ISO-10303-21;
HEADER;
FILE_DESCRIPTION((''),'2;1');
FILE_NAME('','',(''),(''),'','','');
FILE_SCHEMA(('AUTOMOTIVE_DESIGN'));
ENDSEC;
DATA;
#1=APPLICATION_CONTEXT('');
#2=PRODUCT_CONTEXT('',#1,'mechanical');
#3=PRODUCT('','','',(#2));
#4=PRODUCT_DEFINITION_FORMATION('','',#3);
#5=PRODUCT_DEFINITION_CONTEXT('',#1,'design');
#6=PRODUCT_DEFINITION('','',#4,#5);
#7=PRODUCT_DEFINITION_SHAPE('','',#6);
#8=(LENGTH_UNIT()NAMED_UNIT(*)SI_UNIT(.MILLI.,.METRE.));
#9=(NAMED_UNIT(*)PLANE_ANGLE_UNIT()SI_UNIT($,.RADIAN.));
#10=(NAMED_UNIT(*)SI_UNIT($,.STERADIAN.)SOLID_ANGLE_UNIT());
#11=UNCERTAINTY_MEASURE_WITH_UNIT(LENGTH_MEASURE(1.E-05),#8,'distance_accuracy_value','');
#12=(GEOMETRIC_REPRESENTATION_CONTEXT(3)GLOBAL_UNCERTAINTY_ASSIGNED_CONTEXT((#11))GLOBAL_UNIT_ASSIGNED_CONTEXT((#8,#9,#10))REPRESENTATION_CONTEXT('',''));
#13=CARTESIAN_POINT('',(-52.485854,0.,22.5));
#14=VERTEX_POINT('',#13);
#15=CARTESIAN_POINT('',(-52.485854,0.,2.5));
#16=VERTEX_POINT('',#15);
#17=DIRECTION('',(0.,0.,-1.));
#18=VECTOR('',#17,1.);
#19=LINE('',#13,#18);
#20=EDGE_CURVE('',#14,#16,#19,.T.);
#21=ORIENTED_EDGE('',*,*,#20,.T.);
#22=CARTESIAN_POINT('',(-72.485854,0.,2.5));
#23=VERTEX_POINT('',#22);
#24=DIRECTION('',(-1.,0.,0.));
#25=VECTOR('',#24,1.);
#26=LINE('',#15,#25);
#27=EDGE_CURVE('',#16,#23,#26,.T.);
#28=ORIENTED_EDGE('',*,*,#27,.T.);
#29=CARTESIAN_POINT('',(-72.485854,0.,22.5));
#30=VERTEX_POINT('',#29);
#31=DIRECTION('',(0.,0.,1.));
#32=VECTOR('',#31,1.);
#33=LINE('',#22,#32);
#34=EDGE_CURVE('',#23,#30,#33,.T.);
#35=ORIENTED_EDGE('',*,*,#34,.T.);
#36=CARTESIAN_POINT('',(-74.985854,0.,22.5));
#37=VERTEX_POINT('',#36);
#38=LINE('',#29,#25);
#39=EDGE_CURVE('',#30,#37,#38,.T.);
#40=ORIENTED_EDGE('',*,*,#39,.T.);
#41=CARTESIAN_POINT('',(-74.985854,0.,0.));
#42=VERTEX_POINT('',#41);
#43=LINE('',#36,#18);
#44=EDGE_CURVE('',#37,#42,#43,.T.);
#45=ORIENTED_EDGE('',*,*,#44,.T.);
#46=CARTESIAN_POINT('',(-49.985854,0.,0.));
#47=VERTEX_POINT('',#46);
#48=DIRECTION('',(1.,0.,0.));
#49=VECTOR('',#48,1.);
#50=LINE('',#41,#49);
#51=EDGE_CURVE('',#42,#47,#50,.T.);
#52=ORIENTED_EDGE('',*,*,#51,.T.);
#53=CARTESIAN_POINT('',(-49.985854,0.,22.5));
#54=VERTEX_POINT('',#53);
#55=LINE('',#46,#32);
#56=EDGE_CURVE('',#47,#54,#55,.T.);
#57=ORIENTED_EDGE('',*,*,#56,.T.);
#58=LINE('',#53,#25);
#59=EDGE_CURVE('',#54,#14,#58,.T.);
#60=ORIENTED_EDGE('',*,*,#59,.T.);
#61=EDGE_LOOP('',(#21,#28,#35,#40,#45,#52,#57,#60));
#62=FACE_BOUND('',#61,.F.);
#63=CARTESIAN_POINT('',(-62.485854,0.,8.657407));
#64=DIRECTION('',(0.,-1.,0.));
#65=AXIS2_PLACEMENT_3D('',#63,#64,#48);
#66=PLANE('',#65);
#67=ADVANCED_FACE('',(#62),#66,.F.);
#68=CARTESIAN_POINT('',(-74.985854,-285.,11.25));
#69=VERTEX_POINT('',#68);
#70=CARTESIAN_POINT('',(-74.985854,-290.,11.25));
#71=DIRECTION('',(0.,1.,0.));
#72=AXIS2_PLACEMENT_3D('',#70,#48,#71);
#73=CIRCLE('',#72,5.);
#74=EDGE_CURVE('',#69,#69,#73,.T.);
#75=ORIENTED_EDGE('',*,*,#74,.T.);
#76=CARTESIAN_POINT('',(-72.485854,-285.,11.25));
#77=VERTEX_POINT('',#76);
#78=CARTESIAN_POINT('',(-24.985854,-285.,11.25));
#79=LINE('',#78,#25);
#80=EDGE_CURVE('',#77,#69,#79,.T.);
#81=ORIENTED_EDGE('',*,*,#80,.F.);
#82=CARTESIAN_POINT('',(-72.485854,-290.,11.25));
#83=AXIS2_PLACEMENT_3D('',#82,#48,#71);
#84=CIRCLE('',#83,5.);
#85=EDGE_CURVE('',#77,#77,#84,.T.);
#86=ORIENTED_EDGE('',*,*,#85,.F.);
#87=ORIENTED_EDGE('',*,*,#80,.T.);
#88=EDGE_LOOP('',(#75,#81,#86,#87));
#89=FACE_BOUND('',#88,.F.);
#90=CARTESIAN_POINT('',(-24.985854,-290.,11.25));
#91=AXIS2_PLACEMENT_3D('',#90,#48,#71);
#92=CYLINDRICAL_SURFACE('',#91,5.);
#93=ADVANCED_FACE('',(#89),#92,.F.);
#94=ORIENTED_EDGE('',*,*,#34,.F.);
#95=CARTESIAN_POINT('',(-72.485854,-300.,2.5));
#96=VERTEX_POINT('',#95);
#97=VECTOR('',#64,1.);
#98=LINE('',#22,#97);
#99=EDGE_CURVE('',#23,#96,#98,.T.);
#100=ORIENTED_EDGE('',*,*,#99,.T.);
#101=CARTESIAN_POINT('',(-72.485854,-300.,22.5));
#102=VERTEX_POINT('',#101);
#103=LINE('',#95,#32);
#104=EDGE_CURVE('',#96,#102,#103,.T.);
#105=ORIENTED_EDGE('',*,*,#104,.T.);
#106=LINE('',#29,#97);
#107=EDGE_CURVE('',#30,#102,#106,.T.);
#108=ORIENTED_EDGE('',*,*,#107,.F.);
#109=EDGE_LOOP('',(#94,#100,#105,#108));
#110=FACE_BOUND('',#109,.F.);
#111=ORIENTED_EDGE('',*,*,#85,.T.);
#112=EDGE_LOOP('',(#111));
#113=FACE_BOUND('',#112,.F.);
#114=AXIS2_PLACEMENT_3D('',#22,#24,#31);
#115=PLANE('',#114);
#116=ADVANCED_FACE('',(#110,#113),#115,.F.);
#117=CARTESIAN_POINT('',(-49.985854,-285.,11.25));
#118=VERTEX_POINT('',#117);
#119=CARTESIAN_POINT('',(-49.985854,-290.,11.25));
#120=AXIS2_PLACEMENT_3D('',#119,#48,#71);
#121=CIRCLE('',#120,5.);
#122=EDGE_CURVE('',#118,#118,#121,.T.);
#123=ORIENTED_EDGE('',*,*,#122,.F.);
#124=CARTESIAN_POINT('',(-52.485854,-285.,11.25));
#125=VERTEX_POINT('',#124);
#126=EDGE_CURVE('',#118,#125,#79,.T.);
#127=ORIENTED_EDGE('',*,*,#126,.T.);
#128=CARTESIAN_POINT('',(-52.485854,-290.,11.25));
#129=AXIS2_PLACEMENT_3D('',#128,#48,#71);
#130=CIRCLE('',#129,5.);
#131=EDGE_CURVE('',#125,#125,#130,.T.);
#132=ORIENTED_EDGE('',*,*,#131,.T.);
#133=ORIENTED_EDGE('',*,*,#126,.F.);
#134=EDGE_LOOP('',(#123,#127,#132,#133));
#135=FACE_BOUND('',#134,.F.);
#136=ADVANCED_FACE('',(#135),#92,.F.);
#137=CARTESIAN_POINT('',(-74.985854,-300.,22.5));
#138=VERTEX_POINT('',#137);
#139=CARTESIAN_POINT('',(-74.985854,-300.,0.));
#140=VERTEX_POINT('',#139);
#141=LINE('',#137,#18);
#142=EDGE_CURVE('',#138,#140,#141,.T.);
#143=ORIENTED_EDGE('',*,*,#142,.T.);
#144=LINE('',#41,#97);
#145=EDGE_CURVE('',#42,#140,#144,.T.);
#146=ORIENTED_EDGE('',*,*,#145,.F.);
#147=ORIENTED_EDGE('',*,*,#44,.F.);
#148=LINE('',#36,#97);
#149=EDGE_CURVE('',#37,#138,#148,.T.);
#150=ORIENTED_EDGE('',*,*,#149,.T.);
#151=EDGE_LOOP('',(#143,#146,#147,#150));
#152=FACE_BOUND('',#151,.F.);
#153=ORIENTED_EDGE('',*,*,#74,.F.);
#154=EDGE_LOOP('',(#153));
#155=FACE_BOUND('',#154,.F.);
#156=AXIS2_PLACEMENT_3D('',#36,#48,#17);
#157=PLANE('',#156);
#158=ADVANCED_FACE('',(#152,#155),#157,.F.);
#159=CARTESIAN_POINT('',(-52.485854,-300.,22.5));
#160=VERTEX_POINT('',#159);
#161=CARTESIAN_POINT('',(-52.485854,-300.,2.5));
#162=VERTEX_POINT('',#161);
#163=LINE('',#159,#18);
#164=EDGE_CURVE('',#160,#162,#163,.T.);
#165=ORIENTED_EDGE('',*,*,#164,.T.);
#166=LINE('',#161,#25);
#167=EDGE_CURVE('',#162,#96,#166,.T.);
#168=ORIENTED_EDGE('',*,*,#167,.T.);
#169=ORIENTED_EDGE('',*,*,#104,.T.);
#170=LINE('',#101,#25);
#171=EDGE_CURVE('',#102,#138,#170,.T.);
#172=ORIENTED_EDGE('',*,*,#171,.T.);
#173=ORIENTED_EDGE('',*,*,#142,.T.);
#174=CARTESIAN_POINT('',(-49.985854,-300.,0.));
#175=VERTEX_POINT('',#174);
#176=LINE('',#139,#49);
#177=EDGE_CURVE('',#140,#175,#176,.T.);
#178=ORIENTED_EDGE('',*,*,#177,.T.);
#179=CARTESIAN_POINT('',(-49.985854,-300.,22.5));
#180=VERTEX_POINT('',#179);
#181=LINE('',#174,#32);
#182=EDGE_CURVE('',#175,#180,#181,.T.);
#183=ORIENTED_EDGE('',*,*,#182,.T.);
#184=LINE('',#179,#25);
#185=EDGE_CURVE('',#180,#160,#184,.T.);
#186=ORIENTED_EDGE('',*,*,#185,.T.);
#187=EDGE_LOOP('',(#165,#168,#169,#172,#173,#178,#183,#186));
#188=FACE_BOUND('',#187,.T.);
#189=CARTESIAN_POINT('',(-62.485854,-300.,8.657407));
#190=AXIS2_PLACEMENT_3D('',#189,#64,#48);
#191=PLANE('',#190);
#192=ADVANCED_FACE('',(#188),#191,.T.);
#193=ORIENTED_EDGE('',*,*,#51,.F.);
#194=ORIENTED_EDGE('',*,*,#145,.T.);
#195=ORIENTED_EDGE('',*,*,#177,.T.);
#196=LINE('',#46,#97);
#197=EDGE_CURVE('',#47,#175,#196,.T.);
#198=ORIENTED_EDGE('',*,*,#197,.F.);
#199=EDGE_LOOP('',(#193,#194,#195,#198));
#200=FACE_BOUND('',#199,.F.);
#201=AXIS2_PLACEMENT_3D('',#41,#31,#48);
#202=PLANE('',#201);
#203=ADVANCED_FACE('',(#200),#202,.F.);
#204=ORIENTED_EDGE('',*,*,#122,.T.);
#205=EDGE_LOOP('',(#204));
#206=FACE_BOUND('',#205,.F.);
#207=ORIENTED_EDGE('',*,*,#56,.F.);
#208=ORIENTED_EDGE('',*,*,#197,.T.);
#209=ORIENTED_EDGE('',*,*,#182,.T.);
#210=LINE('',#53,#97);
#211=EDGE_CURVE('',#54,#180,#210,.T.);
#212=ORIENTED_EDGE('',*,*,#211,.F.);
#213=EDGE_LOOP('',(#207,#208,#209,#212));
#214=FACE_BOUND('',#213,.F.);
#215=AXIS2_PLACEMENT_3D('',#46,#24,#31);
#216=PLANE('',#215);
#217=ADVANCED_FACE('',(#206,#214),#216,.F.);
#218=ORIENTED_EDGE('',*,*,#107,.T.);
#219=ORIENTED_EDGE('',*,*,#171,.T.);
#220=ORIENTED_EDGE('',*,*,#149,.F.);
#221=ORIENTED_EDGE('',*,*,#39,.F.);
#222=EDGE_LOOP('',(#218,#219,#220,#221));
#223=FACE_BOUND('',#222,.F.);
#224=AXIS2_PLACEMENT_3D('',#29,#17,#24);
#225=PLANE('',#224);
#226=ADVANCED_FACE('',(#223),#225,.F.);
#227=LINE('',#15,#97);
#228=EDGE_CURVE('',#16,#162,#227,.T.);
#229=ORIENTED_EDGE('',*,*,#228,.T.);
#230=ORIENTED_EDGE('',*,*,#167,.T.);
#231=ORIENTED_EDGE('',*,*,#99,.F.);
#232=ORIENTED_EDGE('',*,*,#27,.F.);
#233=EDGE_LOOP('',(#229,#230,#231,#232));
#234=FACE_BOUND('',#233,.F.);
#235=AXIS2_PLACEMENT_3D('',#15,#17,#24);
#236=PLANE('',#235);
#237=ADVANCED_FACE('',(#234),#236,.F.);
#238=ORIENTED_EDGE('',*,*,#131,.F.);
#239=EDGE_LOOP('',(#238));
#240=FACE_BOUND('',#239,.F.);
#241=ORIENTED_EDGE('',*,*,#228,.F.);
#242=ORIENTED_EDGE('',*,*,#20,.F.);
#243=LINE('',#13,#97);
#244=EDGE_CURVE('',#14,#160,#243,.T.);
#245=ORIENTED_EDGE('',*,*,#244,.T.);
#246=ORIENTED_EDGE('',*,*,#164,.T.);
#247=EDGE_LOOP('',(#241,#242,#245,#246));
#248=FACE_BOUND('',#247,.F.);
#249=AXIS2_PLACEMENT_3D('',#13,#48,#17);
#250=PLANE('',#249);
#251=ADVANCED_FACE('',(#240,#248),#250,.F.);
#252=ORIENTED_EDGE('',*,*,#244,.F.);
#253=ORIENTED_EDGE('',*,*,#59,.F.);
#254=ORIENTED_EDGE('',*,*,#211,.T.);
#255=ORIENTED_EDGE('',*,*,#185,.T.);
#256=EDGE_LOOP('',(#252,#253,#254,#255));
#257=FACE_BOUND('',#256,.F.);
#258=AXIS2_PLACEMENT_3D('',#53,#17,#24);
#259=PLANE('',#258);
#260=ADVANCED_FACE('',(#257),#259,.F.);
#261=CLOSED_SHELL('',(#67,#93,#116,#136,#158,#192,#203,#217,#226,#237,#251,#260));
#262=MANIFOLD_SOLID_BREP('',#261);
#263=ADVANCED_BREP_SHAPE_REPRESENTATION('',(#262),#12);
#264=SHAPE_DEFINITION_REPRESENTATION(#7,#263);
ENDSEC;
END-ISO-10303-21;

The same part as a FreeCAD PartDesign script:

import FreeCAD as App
import Part
import Sketcher
Q = App.Units.Quantity


def add_polygon(sketch, points):
    """Adds a closed chain of lines whose ends are joined by coincident constraints."""
    first, n = sketch.GeometryCount, len(points)
    for a, b in zip(points, points[1:] + points[:1]):
        sketch.addGeometry(Part.LineSegment(App.Vector(*a, 0), App.Vector(*b, 0)), False)
    for i in range(n):
        sketch.addConstraint(Sketcher.Constraint("Coincident", first + i, 2, first + (i + 1) % n, 1))

doc = App.newDocument("Part")
params = doc.addObject("Spreadsheet::Sheet", "Params")
for row, (alias, value) in enumerate([
    ("sketch1_width", "25 mm"),
    ("sketch1_width2", "20 mm"),
    ("sketch1_height", "22.5 mm"),
    ("pad1_length", "300 mm"),
    ("sketch2_diameter", "10 mm"),
    ("pocket1_length", "84 mm"),
], start=1):
    params.set(f"A{row}", alias)
    params.set(f"B{row}", "=" + value)
    params.setAlias(f"B{row}", alias)

body = doc.addObject("PartDesign::Body", "Body")

sketch1 = doc.addObject("Sketcher::SketchObject", "Sketch")
body.addObject(sketch1)
sketch1.AttachmentSupport = (doc.XZ_Plane, [""])
sketch1.MapMode = "FlatFace"
add_polygon(sketch1, [(-75, 22.5), (-75, 0), (-50, 0), (-50, 22.5), (-52.5, 22.5), (-52.5, 2.5), (-72.5, 2.5), (-72.5, 22.5)])
sketch1.addConstraint([
    Sketcher.Constraint("Vertical", 0),
    Sketcher.Constraint("Horizontal", 1),
    Sketcher.Constraint("Vertical", 2),
    Sketcher.Constraint("Horizontal", 3),
    Sketcher.Constraint("Vertical", 4),
    Sketcher.Constraint("Horizontal", 5),
    Sketcher.Constraint("Vertical", 6),
    Sketcher.Constraint("Horizontal", 7),
    Sketcher.Constraint("PointOnObject", 0, 2, -1),
    Sketcher.Constraint("Horizontal", 3, 2, 6, 2),
    Sketcher.Constraint("Equal", 3, 7),
    Sketcher.Constraint("Equal", 5, 4),
    Sketcher.Constraint("DistanceX", 1, 1, 1, 2, Q("25 mm")),
    Sketcher.Constraint("DistanceX", 5, 2, 5, 1, Q("20 mm")),
    Sketcher.Constraint("DistanceY", 0, 2, 0, 1, Q("22.5 mm")),
    Sketcher.Constraint("DistanceX", 0, 2, -1, 1, Q("74.985854 mm")),
])
sketch1.setExpression("Constraints[20]", "Params.sketch1_width")
sketch1.setExpression("Constraints[21]", "Params.sketch1_width2")
sketch1.setExpression("Constraints[22]", "Params.sketch1_height")
pad1 = doc.addObject("PartDesign::Pad", "Pad")
body.addObject(pad1)
pad1.Profile = sketch1
pad1.setExpression("Length", "Params.pad1_length")

sketch2 = doc.addObject("Sketcher::SketchObject", "Sketch001")
body.addObject(sketch2)
sketch2.AttachmentSupport = (doc.YZ_Plane, [""])
sketch2.MapMode = "FlatFace"
sketch2.AttachmentOffset = App.Placement(App.Vector(0, 0, -24.985854), App.Rotation())
sketch2.addGeometry(Part.Circle(App.Vector(-290, 11, 0), App.Vector(0, 0, 1), 5), False)
sketch2.addConstraint([
    Sketcher.Constraint("Diameter", 0, Q("10 mm")),
    Sketcher.Constraint("DistanceX", 0, 3, -1, 1, Q("290 mm")),
    Sketcher.Constraint("DistanceY", -1, 1, 0, 3, Q("11.25 mm")),
])
sketch2.setExpression("Constraints[0]", "Params.sketch2_diameter")
pocket1 = doc.addObject("PartDesign::Pocket", "Pocket")
body.addObject(pocket1)
pocket1.Profile = sketch2
pocket1.setExpression("Length", "Params.pocket1_length")

doc.recompute()
